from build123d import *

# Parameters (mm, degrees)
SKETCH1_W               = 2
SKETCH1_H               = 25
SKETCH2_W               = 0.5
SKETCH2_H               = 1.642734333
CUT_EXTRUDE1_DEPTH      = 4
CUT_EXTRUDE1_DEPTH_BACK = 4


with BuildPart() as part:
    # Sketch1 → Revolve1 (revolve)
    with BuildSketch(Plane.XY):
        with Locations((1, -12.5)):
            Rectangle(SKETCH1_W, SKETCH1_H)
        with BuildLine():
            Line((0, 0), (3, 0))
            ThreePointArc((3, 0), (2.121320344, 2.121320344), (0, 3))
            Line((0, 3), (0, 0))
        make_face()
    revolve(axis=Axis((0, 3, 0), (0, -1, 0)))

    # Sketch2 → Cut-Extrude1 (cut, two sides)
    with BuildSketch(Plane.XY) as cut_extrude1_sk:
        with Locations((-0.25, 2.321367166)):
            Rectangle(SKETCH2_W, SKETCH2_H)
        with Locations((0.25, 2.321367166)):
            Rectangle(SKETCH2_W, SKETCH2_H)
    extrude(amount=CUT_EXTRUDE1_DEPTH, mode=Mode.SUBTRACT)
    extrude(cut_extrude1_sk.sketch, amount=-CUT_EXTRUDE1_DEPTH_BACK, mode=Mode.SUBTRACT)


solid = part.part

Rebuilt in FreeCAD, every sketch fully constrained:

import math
import FreeCAD as App
import Part
import Sketcher

V = App.Vector
Q = App.Units.Quantity


def add_polygon(sketch, points):
    """Adds a closed chain of lines whose ends are joined by coincident constraints."""
    first, n = sketch.GeometryCount, len(points)
    for a, b in zip(points, points[1:] + points[:1]):
        sketch.addGeometry(Part.LineSegment(App.Vector(*a, 0), App.Vector(*b, 0)), False)
    for i in range(n):
        sketch.addConstraint(Sketcher.Constraint("Coincident", first + i, 2, first + (i + 1) % n, 1))

doc = App.newDocument("Part")
body = doc.addObject("PartDesign::Body", "Body")

# Sketch on XY plane
sketch1 = body.newObject("Sketcher::SketchObject", "Sketch")
sketch1.AttachmentSupport = (doc.getObject("XY_Plane"), [""])
sketch1.MapMode = "FlatFace"
sketch1.addGeometry(Part.LineSegment(V(0, -25, 0), V(2, -25, 0)), False)
sketch1.addGeometry(Part.LineSegment(V(2, -25, 0), V(2, 0, 0)), False)
sketch1.addGeometry(Part.LineSegment(V(2, 0, 0), V(3, 0, 0)), False)
sketch1.addGeometry(Part.ArcOfCircle(Part.Circle(V(0, 0, 0), V(0, 0, 1), 3), math.radians(0), math.radians(90)), False)
sketch1.addGeometry(Part.LineSegment(V(0, 3, 0), V(0, -25, 0)), False)
sketch1.addConstraint(Sketcher.Constraint("Coincident", 0, 2, 1, 1))
sketch1.addConstraint(Sketcher.Constraint("Coincident", 1, 2, 2, 1))
sketch1.addConstraint(Sketcher.Constraint("Coincident", 2, 2, 3, 1))
sketch1.addConstraint(Sketcher.Constraint("Coincident", 3, 2, 4, 1))
sketch1.addConstraint(Sketcher.Constraint("Coincident", 4, 2, 0, 1))
sketch1.addConstraint(Sketcher.Constraint("Horizontal", 0))
sketch1.addConstraint(Sketcher.Constraint("Vertical", 1))
sketch1.addConstraint(Sketcher.Constraint("Horizontal", 2))
sketch1.addConstraint(Sketcher.Constraint("Vertical", 4))
sketch1.addConstraint(Sketcher.Constraint("Coincident", 3, 3, -1, 1))
sketch1.addConstraint(Sketcher.Constraint("PointOnObject", 1, 2, -1))
sketch1.addConstraint(Sketcher.Constraint("PointOnObject", 3, 2, -2))
sketch1.addConstraint(Sketcher.Constraint("Radius", 3, Q("3 mm")))
sketch1.addConstraint(Sketcher.Constraint("DistanceX", 0, 1, 0, 2, Q("2 mm")))
sketch1.addConstraint(Sketcher.Constraint("DistanceY", 1, 1, 1, 2, Q("25 mm")))
revolution = body.newObject("PartDesign::Revolution", "Revolution")
revolution.Profile = sketch1
revolution.ReferenceAxis = (sketch1, ["V_Axis"])
revolution.Angle = 360

# Sketch on XY plane
sketch2 = body.newObject("Sketcher::SketchObject", "Sketch001")
sketch2.AttachmentSupport = (doc.getObject("XY_Plane"), [""])
sketch2.MapMode = "FlatFace"
add_polygon(sketch2, [(-0.5, 3.1), (-0.5, 1.5), (0.5, 1.5), (0.5, 3.1)])  # lines 0-3
sketch2.addConstraint(Sketcher.Constraint("Vertical", 0))
sketch2.addConstraint(Sketcher.Constraint("Horizontal", 1))
sketch2.addConstraint(Sketcher.Constraint("Vertical", 2))
sketch2.addConstraint(Sketcher.Constraint("Horizontal", 3))
sketch2.addConstraint(Sketcher.Constraint("DistanceX", 1, 1, 1, 2, Q("1 mm")))
sketch2.addConstraint(Sketcher.Constraint("DistanceX", 0, 2, -1, 1, Q("0.5 mm")))
sketch2.addConstraint(Sketcher.Constraint("DistanceY", -1, 1, 0, 2, Q("1.5 mm")))
sketch2.addConstraint(Sketcher.Constraint("DistanceY", 0, 2, 0, 1, Q("1.642734 mm")))
pocket1 = body.newObject("PartDesign::Pocket", "Pocket")
pocket1.Profile = sketch2
pocket1.Type = "ThroughAll"
pocket1.Midplane = True

doc.recompute()
